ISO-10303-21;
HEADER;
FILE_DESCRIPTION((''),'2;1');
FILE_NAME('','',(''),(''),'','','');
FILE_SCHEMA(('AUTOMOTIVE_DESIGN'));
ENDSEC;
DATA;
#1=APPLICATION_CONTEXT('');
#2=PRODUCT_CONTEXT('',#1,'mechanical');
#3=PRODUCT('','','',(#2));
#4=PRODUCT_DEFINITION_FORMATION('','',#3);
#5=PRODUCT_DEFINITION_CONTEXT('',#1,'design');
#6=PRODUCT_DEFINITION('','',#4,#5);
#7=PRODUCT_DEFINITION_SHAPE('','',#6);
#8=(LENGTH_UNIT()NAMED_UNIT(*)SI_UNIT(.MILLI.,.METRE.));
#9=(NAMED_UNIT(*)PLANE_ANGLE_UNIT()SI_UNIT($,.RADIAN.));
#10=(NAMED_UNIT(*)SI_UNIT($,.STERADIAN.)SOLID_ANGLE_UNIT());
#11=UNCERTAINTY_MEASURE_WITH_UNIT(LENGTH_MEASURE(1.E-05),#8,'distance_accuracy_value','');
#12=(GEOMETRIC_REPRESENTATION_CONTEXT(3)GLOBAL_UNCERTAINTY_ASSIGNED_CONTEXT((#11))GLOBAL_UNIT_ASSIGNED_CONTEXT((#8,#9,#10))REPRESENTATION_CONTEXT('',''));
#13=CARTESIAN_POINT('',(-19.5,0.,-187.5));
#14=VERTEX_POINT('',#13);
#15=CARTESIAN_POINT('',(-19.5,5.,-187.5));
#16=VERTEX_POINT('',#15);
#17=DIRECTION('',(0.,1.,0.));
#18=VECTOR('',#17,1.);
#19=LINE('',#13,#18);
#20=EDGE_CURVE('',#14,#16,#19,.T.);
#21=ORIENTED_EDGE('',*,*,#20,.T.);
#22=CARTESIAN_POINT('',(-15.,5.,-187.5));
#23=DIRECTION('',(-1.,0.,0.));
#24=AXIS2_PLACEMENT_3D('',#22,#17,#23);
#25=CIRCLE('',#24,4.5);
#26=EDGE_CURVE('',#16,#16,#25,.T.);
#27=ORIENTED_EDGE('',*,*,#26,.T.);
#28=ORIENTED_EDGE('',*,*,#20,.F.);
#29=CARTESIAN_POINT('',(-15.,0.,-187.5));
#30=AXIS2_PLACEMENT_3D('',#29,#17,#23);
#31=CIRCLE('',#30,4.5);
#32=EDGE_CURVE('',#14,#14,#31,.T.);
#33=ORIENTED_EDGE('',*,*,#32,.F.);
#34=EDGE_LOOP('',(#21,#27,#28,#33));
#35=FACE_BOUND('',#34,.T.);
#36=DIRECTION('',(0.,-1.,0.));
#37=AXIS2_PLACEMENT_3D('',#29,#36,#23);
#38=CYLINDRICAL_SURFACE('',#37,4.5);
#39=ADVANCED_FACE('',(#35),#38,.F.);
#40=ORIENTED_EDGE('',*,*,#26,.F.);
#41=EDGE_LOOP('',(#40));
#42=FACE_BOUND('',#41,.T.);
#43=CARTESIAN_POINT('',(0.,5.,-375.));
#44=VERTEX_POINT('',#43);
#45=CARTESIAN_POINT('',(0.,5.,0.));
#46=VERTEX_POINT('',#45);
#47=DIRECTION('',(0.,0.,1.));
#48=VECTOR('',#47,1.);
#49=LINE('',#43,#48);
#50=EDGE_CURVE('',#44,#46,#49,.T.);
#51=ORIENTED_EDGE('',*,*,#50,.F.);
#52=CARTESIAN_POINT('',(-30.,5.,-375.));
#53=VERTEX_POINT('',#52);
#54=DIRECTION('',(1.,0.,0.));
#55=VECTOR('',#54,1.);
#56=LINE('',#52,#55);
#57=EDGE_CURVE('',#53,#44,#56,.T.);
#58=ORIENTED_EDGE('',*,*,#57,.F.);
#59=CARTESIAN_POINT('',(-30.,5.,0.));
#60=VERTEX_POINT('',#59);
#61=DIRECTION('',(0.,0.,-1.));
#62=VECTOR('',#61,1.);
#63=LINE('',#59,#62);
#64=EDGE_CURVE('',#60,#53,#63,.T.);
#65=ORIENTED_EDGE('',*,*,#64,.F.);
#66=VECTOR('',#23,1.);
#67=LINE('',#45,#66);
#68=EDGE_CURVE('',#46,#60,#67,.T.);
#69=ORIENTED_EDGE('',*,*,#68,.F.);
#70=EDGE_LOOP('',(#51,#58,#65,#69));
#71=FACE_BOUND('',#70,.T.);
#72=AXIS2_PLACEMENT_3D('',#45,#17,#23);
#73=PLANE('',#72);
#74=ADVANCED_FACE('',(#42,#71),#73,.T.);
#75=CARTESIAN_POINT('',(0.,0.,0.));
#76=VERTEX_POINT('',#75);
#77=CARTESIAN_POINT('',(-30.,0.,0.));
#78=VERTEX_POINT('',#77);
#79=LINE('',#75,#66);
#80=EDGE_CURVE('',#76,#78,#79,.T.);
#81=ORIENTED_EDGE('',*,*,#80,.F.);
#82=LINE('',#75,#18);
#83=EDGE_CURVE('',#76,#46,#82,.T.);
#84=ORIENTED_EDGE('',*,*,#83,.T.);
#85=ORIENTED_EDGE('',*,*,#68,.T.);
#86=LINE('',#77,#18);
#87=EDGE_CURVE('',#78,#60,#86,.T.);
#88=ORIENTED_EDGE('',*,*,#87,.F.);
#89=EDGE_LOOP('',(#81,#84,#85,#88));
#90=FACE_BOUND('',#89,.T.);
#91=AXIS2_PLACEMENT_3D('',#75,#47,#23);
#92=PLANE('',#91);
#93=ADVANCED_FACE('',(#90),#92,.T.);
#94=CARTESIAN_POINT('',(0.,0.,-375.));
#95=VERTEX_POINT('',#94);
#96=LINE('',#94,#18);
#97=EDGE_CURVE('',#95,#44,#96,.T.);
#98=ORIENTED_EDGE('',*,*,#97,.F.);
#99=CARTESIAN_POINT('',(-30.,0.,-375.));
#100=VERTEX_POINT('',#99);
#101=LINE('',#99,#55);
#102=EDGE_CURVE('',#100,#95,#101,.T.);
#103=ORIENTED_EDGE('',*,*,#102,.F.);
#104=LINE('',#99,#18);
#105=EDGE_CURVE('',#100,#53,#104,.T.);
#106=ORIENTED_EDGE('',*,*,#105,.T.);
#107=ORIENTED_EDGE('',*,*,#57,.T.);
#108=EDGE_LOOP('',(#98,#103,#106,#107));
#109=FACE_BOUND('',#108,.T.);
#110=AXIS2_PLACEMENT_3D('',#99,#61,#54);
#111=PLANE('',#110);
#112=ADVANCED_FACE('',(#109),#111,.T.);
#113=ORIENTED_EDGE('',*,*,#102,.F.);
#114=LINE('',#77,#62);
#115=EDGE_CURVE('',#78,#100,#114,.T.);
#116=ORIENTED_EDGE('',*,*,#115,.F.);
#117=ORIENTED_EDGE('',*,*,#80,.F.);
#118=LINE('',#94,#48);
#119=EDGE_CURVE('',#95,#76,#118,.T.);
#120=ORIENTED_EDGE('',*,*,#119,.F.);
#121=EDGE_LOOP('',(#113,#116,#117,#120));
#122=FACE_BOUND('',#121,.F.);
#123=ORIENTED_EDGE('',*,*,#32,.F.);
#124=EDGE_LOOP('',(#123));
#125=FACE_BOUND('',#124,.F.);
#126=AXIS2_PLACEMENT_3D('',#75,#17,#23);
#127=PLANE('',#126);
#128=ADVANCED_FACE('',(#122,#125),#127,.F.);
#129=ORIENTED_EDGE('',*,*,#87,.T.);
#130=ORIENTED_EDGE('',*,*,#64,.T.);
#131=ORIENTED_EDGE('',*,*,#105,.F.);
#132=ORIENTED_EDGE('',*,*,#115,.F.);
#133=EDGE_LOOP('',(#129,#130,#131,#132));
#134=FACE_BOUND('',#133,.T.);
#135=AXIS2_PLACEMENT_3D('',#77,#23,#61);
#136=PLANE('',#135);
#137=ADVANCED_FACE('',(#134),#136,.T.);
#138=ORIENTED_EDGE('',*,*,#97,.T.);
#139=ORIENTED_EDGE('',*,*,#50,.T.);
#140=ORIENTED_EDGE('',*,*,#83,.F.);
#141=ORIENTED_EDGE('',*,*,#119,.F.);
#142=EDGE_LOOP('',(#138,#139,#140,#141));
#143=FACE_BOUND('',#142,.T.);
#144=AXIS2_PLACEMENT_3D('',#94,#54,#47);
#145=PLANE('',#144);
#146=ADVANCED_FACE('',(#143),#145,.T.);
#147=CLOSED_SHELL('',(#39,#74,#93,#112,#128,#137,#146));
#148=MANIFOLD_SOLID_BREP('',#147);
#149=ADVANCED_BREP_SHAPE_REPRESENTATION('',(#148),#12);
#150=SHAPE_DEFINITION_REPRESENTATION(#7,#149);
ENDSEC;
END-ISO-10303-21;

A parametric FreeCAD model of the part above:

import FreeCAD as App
import Part
import Sketcher
Q = App.Units.Quantity


def add_polygon(sketch, points):
    """Adds a closed chain of lines whose ends are joined by coincident constraints."""
    first, n = sketch.GeometryCount, len(points)
    for a, b in zip(points, points[1:] + points[:1]):
        sketch.addGeometry(Part.LineSegment(App.Vector(*a, 0), App.Vector(*b, 0)), False)
    for i in range(n):
        sketch.addConstraint(Sketcher.Constraint("Coincident", first + i, 2, first + (i + 1) % n, 1))

doc = App.newDocument("Part")
body = doc.addObject("PartDesign::Body", "Body")

# Sketch on XZ plane
sketch1 = body.newObject("Sketcher::SketchObject", "Sketch")
sketch1.AttachmentSupport = (doc.getObject("XZ_Plane"), [""])
sketch1.MapMode = "FlatFace"
add_polygon(sketch1, [(-30, 0), (0, 0), (0, -375), (-30, -375)])  # lines 0-3
sketch1.addGeometry(Part.Circle(App.Vector(-15, -187.5, 0), App.Vector(0, 0, 1), 4.5), False)  # 4
sketch1.addConstraint(Sketcher.Constraint("Horizontal", 0))
sketch1.addConstraint(Sketcher.Constraint("Vertical", 1))
sketch1.addConstraint(Sketcher.Constraint("Horizontal", 2))
sketch1.addConstraint(Sketcher.Constraint("Vertical", 3))
sketch1.addConstraint(Sketcher.Constraint("Coincident", 0, 2, -1, 1))
sketch1.addConstraint(Sketcher.Constraint("Diameter", 4, Q("9 mm")))
sketch1.addConstraint(Sketcher.Constraint("DistanceX", 0, 1, 0, 2, Q("30 mm")))
sketch1.addConstraint(Sketcher.Constraint("DistanceY", 1, 2, 1, 1, Q("375 mm")))
sketch1.addConstraint(Sketcher.Constraint("DistanceX", 4, 3, -1, 1, Q("15 mm")))
sketch1.addConstraint(Sketcher.Constraint("DistanceY", 4, 3, -1, 1, Q("187.5 mm")))
pad1 = body.newObject("PartDesign::Pad", "Pad")
pad1.Profile = sketch1
pad1.Length = 5
pad1.Reversed = True

doc.recompute()
